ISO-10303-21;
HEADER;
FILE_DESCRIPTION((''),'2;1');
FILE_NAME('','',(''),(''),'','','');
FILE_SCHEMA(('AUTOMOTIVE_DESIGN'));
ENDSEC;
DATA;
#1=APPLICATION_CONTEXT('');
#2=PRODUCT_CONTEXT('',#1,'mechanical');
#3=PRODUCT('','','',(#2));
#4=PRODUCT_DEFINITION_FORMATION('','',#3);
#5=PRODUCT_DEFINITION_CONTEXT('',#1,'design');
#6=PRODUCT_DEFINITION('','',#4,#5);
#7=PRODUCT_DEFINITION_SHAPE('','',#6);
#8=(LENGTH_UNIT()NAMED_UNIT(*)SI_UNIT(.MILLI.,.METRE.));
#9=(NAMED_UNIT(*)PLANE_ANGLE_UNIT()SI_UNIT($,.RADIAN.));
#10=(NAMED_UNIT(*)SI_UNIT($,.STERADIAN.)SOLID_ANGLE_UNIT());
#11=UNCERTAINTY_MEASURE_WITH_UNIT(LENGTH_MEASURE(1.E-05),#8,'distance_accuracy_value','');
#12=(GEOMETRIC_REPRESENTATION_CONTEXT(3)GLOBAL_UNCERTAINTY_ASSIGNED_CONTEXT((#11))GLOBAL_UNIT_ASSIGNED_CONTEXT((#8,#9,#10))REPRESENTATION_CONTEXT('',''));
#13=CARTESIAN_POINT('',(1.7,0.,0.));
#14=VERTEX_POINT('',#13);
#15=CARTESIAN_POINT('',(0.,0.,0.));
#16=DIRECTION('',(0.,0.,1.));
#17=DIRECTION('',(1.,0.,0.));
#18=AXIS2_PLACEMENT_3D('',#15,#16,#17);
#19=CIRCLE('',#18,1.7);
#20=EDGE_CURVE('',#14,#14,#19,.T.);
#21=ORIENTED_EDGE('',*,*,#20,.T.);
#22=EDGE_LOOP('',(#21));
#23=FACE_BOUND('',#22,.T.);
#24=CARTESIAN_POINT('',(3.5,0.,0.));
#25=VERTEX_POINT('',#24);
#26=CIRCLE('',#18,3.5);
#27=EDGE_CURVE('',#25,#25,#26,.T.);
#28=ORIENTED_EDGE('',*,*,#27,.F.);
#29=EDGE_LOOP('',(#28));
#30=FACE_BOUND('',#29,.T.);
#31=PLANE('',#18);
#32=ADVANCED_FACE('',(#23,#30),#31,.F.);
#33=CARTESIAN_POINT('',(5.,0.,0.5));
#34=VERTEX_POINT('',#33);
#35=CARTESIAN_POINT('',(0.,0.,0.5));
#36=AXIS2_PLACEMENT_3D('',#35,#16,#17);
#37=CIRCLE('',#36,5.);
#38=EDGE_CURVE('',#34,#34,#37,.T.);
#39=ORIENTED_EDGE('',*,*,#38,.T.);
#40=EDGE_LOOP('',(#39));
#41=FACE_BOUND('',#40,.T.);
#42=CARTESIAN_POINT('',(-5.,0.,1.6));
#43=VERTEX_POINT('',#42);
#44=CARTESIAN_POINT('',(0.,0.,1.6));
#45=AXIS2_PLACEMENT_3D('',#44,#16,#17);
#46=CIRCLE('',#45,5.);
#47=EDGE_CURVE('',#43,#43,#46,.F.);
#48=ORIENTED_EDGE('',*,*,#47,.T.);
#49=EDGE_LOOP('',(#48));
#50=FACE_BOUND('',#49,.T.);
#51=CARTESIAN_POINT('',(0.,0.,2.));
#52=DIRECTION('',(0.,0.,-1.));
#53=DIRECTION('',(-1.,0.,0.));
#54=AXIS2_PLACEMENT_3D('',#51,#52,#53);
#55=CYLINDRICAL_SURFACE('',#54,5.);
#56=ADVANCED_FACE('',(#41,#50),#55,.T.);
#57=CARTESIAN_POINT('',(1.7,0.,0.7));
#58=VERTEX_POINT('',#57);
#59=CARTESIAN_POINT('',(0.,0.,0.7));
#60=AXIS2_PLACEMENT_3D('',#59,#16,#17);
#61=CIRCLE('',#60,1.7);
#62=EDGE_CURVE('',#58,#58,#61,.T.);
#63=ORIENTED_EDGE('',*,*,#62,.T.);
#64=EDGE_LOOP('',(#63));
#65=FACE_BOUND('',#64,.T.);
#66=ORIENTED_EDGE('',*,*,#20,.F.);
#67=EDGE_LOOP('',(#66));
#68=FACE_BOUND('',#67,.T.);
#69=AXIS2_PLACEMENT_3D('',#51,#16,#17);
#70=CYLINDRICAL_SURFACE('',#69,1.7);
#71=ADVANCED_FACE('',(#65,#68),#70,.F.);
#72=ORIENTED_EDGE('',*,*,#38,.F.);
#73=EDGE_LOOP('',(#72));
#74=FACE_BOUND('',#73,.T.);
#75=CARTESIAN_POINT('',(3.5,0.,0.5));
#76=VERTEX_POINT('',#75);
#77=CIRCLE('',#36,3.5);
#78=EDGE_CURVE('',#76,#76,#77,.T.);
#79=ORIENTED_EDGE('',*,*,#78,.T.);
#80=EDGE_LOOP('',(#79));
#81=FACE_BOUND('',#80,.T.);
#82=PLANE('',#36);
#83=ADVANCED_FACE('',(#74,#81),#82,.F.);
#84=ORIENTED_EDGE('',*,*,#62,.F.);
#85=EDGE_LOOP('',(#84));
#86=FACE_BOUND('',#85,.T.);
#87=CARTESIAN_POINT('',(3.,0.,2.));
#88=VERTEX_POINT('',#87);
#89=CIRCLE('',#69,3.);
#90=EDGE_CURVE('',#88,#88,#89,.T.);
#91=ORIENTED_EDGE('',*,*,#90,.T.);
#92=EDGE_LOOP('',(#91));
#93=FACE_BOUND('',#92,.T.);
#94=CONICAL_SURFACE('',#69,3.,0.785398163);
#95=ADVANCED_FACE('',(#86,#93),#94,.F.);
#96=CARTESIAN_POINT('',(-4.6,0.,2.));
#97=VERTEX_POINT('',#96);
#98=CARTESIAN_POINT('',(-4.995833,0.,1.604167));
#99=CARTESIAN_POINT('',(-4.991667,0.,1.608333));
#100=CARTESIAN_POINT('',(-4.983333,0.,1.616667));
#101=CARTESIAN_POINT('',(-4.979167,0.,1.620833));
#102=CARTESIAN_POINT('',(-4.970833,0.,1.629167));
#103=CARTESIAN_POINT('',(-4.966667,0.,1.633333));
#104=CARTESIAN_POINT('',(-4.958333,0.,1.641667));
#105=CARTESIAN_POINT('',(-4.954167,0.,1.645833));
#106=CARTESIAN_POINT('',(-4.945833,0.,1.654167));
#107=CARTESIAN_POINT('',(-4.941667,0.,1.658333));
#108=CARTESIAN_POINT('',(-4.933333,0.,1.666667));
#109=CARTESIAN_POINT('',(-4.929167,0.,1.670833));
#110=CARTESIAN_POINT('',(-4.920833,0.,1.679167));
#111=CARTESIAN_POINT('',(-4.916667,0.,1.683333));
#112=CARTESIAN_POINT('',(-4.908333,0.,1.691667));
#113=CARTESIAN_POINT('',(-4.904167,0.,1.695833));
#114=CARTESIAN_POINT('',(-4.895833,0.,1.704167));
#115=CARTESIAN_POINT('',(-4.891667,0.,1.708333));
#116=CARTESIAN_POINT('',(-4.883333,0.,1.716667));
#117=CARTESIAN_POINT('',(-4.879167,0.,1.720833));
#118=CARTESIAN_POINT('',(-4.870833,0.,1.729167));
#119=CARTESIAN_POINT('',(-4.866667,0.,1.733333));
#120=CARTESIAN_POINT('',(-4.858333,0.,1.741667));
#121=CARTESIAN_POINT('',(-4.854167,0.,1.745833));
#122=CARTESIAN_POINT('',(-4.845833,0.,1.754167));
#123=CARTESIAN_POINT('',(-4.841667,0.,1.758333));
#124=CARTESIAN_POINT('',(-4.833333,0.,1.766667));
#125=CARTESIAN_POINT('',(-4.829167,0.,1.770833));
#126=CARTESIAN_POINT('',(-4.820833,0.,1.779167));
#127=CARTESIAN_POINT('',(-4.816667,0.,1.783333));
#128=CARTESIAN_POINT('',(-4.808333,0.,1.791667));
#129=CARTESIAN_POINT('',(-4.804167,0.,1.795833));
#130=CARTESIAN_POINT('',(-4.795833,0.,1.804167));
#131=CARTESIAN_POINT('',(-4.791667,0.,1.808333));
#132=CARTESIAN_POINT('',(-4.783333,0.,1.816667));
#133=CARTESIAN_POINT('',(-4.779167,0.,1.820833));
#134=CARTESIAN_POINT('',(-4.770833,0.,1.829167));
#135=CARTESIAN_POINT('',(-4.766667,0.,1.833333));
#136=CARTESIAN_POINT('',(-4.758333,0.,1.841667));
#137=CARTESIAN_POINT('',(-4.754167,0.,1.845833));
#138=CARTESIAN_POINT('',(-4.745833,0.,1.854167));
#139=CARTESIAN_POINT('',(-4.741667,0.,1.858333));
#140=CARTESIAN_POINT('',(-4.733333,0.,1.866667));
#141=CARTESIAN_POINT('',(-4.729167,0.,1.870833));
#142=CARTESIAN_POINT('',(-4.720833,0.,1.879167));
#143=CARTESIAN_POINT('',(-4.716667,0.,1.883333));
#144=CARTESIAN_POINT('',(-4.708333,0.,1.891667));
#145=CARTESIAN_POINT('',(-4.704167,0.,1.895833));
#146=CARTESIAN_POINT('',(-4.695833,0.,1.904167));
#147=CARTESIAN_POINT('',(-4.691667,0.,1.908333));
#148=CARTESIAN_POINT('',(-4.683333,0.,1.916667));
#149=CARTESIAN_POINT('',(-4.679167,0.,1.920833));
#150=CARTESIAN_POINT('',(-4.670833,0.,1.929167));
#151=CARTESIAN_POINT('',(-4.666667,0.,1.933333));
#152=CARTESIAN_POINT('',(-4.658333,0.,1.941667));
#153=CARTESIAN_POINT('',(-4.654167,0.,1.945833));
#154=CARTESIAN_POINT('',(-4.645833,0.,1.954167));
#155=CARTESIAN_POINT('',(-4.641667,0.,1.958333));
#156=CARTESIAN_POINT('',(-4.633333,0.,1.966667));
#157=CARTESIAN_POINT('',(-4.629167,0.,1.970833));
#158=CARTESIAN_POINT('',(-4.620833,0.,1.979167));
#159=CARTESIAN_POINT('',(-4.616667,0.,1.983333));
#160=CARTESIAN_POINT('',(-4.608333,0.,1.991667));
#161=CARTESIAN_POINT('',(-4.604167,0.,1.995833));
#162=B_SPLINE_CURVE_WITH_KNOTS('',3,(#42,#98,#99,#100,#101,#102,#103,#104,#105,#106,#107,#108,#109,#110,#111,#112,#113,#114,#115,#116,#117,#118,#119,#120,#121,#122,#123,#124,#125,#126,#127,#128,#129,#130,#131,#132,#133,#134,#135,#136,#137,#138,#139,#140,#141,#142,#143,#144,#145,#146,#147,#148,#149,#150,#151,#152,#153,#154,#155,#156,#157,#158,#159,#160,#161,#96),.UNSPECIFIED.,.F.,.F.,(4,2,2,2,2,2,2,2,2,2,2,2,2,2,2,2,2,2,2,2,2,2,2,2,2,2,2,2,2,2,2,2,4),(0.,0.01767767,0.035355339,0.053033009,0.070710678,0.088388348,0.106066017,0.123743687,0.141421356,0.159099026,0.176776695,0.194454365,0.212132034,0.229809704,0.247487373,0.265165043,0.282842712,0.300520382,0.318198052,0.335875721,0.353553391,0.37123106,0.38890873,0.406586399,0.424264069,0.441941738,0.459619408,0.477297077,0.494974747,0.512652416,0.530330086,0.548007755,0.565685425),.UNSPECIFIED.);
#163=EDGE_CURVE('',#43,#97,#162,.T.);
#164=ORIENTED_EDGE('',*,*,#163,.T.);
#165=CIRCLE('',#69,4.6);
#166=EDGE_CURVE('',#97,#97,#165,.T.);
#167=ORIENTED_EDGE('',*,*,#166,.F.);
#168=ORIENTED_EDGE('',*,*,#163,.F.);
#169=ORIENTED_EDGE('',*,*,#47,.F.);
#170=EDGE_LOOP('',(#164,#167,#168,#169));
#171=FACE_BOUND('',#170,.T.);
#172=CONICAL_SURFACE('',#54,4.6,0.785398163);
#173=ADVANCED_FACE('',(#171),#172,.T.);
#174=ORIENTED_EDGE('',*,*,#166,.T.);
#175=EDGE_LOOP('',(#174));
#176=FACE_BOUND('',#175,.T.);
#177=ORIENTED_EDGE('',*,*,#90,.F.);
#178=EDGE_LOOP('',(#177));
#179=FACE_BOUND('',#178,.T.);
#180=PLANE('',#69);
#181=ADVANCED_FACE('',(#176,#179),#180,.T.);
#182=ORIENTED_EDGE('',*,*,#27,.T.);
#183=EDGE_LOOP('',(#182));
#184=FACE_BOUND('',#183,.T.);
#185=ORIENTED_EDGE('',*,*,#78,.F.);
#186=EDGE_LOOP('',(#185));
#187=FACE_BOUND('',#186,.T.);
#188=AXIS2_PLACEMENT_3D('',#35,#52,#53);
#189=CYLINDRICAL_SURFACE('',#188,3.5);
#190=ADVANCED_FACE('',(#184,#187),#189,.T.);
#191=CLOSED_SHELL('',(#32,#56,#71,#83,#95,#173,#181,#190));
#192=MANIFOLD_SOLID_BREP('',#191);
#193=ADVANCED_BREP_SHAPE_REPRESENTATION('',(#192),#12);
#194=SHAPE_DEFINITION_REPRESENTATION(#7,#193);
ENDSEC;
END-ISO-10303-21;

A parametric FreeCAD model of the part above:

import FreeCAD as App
import Part
import Sketcher

V = App.Vector
Q = App.Units.Quantity


def edges_at(feature, points):
    """Names of the edges that pass closest to the given points."""
    edges = feature.Shape.Edges
    near = lambda p: min(range(len(edges)), key=lambda i: edges[i].distToShape(Part.Vertex(*p))[0])
    return sorted({f"Edge{near(p) + 1}" for p in points})

doc = App.newDocument("Part")
params = doc.addObject("Spreadsheet::Sheet", "Params")
for row, (alias, value) in enumerate([
    ("sketch1_diameter", "7 mm"),
    ("pad1_length", "0.5 mm"),
    ("sketch2_diameter", "10 mm"),
    ("pad2_length", "1.5 mm"),
    ("chamfer_size", "0.4 mm"),
    ("sketch3_width", "3 mm"),
    ("sketch3_height", "2 mm"),
    ("sketch3_width2", "1.7 mm"),
    ("groove_angle", "360 deg"),
], start=1):
    params.set(f"A{row}", alias)
    params.set(f"B{row}", "=" + value)
    params.setAlias(f"B{row}", alias)

body = doc.addObject("PartDesign::Body", "Body")

# Sketch on XY plane
sketch1 = body.newObject("Sketcher::SketchObject", "Sketch")
sketch1.AttachmentSupport = (doc.getObject("XY_Plane"), [""])
sketch1.MapMode = "FlatFace"
sketch1.addGeometry(Part.Circle(V(0, 0, 0), V(0, 0, 1), 3.5), False)
sketch1.addConstraint([
    Sketcher.Constraint("Coincident", 0, 3, -1, 1),
    Sketcher.Constraint("Diameter", 0, Q("7 mm")),
])
sketch1.setExpression("Constraints[1]", "Params.sketch1_diameter")
pad1 = body.newObject("PartDesign::Pad", "Pad")
pad1.Profile = sketch1
pad1.setExpression("Length", "Params.pad1_length")

# Sketch on XY plane
sketch2 = body.newObject("Sketcher::SketchObject", "Sketch001")
sketch2.AttachmentSupport = (doc.getObject("XY_Plane"), [""])
sketch2.MapMode = "FlatFace"
sketch2.AttachmentOffset = App.Placement(V(0, 0, 0.5), App.Rotation())
sketch2.addGeometry(Part.Circle(V(0, 0, 0), V(0, 0, 1), 5), False)
sketch2.addConstraint([
    Sketcher.Constraint("Coincident", 0, 3, -1, 1),
    Sketcher.Constraint("Diameter", 0, Q("10 mm")),
])
sketch2.setExpression("Constraints[1]", "Params.sketch2_diameter")
pad2 = body.newObject("PartDesign::Pad", "Pad001")
pad2.Profile = sketch2
pad2.setExpression("Length", "Params.pad2_length")
doc.recompute()

chamfer = body.newObject("PartDesign::Chamfer", "Chamfer")
chamfer.Base = (pad2, edges_at(pad2, [(-5, 0, 2)]))
chamfer.setExpression("Size", "Params.chamfer_size")

# Sketch on YZ plane
sketch3 = body.newObject("Sketcher::SketchObject", "Sketch002")
sketch3.AttachmentSupport = (doc.getObject("YZ_Plane"), [""])
sketch3.MapMode = "FlatFace"
sketch3.addGeometry([
    Part.LineSegment(V(0, 2, 0), V(-3, 2, 0)),  # 0
    Part.LineSegment(V(-3, 2, 0), V(-1.7, 0.7, 0)),  # 1
    Part.LineSegment(V(-1.7, 0.7, 0), V(-1.7, 0, 0)),  # 2
    Part.LineSegment(V(-1.7, 0, 0), V(0, 0, 0)),  # 3
    Part.LineSegment(V(0, 0, 0), V(0, 2, 0)),  # 4
], False)
sketch3.addConstraint([
    Sketcher.Constraint("Coincident", 0, 2, 1, 1),
    Sketcher.Constraint("Coincident", 1, 2, 2, 1),
    Sketcher.Constraint("Coincident", 2, 2, 3, 1),
    Sketcher.Constraint("Coincident", 3, 2, 4, 1),
    Sketcher.Constraint("Coincident", 4, 2, 0, 1),
    Sketcher.Constraint("Horizontal", 0),
    Sketcher.Constraint("Vertical", 2),
    Sketcher.Constraint("Horizontal", 3),
    Sketcher.Constraint("Vertical", 4),
    Sketcher.Constraint("Coincident", 3, 2, -1, 1),
    Sketcher.Constraint("DistanceX", 0, 2, 0, 1, Q("3 mm")),
    Sketcher.Constraint("DistanceY", 4, 1, 4, 2, Q("2 mm")),
    Sketcher.Constraint("Angle", 1, Q("-45 deg")),
    Sketcher.Constraint("DistanceX", 3, 1, 3, 2, Q("1.7 mm")),
])
sketch3.setExpression("Constraints[10]", "Params.sketch3_width")
sketch3.setExpression("Constraints[11]", "Params.sketch3_height")
sketch3.setExpression("Constraints[13]", "Params.sketch3_width2")
groove = body.newObject("PartDesign::Groove", "Groove")
groove.Profile = sketch3
groove.ReferenceAxis = (sketch3, ["V_Axis"])
groove.setExpression("Angle", "Params.groove_angle")

doc.recompute()
